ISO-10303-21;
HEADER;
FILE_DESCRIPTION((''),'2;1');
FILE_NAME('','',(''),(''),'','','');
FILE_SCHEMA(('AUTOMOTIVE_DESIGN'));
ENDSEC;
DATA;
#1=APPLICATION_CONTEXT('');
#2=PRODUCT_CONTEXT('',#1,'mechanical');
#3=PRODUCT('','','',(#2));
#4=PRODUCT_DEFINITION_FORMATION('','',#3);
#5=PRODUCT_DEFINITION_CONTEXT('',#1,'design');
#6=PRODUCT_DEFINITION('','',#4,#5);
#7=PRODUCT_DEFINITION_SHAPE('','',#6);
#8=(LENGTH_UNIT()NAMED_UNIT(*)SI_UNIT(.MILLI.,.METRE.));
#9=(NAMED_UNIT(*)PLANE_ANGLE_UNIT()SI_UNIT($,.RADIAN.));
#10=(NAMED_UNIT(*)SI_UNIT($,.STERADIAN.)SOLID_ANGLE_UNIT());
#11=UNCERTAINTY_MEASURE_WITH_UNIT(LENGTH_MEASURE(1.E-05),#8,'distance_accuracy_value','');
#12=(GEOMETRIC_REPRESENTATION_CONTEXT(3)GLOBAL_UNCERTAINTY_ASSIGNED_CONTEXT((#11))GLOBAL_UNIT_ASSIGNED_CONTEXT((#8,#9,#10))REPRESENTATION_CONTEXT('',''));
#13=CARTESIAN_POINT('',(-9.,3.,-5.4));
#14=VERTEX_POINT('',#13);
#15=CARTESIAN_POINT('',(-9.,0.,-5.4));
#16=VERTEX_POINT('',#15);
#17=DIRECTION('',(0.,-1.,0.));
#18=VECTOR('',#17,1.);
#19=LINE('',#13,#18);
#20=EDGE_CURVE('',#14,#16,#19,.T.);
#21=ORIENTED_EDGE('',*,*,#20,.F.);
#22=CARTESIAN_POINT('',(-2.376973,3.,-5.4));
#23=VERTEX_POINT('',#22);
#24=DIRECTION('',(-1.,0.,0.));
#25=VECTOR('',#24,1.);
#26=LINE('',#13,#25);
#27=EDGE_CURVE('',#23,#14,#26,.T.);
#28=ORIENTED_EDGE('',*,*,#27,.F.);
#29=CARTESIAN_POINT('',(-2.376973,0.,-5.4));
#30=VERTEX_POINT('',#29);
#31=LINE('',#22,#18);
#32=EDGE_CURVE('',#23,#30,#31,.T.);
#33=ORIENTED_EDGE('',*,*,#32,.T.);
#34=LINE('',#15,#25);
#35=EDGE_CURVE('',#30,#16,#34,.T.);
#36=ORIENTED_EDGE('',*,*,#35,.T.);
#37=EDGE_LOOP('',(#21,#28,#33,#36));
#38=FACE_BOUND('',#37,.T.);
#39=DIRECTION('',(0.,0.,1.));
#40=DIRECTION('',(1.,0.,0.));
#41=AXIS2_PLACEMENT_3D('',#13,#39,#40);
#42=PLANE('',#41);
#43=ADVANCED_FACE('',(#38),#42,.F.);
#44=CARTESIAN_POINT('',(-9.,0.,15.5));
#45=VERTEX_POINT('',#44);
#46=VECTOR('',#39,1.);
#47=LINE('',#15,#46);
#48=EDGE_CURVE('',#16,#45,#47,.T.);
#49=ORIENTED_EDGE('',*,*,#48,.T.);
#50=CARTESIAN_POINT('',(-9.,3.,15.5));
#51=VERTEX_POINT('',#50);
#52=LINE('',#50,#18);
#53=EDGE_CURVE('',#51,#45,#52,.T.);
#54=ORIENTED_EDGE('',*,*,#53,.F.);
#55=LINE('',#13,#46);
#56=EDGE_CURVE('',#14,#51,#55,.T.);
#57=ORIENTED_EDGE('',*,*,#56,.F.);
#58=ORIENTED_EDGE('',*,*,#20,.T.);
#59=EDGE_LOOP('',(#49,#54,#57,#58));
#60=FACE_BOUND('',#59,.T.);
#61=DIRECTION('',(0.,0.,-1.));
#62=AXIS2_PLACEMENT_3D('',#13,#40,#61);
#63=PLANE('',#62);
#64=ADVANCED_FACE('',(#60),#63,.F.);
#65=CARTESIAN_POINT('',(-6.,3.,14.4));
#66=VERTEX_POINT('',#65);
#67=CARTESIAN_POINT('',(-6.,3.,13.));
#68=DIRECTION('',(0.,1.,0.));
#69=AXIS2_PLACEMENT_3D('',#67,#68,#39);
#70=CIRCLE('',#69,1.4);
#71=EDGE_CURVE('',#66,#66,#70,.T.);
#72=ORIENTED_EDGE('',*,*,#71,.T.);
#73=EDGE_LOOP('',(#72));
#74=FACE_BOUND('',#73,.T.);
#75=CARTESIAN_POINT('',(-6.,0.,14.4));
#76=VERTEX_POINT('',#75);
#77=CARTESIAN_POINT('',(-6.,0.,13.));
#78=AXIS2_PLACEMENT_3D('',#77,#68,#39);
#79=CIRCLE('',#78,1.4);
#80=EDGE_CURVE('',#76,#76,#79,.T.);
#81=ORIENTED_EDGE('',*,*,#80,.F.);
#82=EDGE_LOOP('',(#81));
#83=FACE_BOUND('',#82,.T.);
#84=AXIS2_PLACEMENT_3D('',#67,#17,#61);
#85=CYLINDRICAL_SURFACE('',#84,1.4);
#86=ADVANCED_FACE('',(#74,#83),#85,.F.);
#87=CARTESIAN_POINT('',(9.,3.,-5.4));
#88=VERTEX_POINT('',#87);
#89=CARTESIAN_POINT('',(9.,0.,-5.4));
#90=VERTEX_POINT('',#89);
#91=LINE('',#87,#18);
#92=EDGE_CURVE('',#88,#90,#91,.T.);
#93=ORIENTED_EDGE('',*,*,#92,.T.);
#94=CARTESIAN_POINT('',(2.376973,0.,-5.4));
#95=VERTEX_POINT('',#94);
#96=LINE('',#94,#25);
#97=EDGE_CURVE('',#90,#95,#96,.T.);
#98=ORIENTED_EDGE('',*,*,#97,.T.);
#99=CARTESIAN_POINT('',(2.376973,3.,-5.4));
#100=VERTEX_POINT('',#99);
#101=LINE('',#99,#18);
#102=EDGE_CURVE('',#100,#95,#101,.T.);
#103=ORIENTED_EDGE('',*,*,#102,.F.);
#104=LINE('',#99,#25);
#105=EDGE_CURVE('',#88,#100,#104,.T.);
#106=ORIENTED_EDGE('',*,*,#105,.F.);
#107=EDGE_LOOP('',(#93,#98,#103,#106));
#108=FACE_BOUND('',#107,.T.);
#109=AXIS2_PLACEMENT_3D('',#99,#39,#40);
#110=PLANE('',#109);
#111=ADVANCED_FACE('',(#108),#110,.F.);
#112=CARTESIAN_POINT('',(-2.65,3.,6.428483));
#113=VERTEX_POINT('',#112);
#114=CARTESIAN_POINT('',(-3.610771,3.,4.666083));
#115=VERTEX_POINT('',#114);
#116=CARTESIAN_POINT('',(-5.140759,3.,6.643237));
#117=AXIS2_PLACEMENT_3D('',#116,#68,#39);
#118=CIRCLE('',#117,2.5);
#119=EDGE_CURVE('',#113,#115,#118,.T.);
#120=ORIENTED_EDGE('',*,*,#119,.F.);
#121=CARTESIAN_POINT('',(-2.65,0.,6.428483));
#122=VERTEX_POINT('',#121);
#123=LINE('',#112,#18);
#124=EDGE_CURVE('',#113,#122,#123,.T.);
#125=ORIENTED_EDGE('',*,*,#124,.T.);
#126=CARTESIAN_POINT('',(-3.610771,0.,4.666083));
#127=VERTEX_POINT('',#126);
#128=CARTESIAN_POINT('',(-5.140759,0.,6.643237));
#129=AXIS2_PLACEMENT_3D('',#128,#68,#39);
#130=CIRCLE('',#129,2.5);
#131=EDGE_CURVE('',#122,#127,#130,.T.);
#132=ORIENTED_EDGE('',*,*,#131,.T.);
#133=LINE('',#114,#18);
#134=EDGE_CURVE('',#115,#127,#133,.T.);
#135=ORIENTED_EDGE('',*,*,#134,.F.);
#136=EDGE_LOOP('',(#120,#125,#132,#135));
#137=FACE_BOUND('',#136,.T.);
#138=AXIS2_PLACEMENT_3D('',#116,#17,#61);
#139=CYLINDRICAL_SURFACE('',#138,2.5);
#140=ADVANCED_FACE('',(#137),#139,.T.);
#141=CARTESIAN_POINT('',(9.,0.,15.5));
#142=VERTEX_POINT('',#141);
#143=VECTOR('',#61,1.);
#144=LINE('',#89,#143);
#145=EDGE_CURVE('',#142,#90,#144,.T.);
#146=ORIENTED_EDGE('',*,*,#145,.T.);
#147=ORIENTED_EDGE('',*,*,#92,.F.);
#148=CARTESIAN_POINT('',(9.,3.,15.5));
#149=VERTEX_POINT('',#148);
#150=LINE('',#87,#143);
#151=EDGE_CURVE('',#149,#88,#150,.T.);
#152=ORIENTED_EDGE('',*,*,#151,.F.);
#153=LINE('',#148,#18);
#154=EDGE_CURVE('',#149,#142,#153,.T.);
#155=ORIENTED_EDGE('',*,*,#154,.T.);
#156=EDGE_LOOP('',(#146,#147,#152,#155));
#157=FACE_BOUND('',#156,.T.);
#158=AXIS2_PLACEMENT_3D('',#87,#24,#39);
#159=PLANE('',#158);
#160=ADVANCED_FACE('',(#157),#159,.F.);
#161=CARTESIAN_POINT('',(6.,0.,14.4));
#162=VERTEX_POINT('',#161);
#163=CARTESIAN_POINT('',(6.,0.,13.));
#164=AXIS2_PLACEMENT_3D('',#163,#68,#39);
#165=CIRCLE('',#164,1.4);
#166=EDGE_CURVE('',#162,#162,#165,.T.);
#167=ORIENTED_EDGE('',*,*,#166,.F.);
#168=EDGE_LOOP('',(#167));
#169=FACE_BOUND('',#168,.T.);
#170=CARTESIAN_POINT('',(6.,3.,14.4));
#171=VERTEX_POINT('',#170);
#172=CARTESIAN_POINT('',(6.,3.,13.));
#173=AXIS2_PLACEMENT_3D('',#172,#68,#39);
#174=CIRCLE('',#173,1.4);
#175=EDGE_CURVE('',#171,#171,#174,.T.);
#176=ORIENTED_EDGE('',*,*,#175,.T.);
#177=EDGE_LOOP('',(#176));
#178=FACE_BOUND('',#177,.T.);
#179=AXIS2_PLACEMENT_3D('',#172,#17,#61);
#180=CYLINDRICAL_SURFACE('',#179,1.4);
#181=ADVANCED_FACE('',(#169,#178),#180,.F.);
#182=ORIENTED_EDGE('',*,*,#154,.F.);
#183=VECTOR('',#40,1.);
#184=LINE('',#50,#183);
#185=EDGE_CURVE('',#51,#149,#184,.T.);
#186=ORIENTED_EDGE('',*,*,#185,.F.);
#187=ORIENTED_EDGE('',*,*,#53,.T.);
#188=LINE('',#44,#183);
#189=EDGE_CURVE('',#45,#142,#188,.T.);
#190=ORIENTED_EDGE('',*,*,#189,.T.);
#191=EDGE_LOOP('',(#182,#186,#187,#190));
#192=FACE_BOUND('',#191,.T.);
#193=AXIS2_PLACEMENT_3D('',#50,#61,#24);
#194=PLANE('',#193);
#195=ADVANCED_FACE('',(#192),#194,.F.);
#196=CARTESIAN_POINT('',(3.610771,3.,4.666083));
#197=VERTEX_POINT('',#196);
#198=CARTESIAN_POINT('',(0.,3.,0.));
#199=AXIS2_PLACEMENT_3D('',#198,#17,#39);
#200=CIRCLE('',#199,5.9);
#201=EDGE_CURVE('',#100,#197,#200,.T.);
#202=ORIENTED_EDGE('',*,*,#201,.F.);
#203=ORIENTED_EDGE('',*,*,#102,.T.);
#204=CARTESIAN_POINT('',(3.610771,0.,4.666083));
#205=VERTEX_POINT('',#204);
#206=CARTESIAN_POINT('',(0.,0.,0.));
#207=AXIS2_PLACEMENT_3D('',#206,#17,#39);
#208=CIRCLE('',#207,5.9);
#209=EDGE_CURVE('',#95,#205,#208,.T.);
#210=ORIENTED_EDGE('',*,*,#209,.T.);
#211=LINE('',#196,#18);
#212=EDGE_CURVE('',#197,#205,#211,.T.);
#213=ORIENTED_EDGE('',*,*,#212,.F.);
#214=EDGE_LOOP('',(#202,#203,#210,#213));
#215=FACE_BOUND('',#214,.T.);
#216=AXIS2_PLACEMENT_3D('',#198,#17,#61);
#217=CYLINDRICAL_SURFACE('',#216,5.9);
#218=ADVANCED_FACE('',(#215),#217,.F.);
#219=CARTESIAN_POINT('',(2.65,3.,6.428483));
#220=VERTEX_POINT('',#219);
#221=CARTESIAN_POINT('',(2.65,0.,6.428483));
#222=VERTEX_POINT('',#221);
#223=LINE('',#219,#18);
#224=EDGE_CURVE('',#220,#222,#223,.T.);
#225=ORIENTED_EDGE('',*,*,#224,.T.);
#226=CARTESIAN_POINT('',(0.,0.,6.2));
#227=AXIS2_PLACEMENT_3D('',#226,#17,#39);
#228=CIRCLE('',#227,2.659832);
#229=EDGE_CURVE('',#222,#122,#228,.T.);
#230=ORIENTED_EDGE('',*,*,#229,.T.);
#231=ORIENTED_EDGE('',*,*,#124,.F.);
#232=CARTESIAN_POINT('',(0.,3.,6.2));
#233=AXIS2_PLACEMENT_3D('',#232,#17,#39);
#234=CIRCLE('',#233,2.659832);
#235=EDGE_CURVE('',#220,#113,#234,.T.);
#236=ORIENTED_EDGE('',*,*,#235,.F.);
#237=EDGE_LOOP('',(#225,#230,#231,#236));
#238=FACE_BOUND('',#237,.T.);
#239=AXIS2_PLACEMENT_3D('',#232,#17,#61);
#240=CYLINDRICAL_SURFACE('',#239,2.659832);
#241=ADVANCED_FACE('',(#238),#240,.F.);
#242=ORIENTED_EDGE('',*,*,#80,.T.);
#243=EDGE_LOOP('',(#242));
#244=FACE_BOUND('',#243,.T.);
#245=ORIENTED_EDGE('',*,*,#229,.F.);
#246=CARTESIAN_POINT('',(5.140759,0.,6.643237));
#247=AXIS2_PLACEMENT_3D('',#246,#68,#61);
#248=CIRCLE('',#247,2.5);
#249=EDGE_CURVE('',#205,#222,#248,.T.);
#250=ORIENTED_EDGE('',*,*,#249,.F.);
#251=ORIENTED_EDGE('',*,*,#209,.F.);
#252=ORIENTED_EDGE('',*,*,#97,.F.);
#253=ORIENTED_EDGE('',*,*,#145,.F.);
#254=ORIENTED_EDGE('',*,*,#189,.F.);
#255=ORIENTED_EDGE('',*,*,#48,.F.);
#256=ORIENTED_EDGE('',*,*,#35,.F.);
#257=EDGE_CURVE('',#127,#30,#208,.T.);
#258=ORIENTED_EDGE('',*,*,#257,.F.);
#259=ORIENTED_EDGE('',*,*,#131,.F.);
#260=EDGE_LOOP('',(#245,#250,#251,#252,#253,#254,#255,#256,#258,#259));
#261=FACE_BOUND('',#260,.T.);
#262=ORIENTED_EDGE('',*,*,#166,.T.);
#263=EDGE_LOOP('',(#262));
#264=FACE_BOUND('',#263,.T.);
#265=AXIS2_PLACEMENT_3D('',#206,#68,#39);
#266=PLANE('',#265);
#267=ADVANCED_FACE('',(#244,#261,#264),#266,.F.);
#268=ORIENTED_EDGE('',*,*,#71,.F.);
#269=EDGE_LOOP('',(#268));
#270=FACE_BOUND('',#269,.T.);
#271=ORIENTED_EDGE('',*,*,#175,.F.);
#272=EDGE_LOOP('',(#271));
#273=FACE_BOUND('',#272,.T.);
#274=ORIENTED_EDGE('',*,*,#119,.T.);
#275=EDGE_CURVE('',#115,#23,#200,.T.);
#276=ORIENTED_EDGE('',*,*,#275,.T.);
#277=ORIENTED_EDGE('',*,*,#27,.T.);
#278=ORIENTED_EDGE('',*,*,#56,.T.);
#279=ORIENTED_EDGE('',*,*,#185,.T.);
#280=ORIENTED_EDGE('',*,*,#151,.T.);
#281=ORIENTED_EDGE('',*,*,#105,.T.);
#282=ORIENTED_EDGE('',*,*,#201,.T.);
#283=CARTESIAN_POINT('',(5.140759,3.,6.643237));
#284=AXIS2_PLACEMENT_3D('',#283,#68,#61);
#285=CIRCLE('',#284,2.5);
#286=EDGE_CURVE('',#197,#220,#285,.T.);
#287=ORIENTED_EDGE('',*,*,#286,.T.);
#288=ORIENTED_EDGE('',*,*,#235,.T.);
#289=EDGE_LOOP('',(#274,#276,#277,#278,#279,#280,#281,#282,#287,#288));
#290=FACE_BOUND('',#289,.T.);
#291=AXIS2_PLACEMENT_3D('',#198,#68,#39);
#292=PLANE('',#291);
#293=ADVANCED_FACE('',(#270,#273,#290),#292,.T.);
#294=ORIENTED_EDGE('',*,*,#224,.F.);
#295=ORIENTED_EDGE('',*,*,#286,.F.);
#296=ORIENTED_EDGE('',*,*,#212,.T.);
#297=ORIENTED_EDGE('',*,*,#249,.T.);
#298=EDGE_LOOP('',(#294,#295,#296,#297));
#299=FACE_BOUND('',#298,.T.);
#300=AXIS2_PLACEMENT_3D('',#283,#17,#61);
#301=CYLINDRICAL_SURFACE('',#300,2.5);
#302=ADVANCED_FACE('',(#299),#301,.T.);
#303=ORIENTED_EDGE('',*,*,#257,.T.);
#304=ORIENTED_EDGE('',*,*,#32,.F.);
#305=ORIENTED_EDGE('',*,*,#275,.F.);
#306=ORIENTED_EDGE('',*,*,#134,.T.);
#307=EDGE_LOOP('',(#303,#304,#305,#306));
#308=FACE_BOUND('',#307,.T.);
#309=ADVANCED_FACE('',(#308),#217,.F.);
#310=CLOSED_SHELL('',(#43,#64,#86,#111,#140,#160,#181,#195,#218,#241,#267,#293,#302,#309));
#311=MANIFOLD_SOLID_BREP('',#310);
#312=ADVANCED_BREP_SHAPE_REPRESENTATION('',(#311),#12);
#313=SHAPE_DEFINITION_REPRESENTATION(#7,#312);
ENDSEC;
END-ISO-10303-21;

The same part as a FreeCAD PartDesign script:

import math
import FreeCAD as App
import Part
import Sketcher

V = App.Vector
Q = App.Units.Quantity

doc = App.newDocument("Part")
body = doc.addObject("PartDesign::Body", "Body")

# Sketch on XZ plane
sketch1 = body.newObject("Sketcher::SketchObject", "Sketch")
sketch1.AttachmentSupport = (doc.getObject("XZ_Plane"), [""])
sketch1.MapMode = "FlatFace"
sketch1.addGeometry([
    Part.LineSegment(V(9, -5.4, 0), V(2.4, -5.4, 0)),  # 0
    Part.ArcOfCircle(Part.Circle(V(0, 0, 0), V(0, 0, 1), 5.9), math.radians(-66), math.radians(52)),  # 1
    Part.ArcOfCircle(Part.Circle(V(5.1, 6.6, 0), V(0, 0, 1), 2.5), math.radians(-175), math.radians(-128)),  # 2
    Part.ArcOfCircle(Part.Circle(V(0, 6.2, 0), V(0, 0, 1), 2.7), math.radians(5), math.radians(175)),  # 3
    Part.ArcOfCircle(Part.Circle(V(-5.1, 6.6, 0), V(0, 0, 1), 2.5), math.radians(-52), math.radians(-5)),  # 4
    Part.ArcOfCircle(Part.Circle(V(0, 0, 0), V(0, 0, 1), 5.9), math.radians(128), math.radians(246)),  # 5
    Part.LineSegment(V(-2.4, -5.4, 0), V(-9, -5.4, 0)),  # 6
    Part.LineSegment(V(-9, -5.4, 0), V(-9, 15.5, 0)),  # 7
    Part.LineSegment(V(-9, 15.5, 0), V(9, 15.5, 0)),  # 8
    Part.LineSegment(V(9, 15.5, 0), V(9, -5.4, 0)),  # 9
    Part.Circle(V(6, 13, 0), V(0, 0, 1), 1.4),  # 10
    Part.Circle(V(-6, 13, 0), V(0, 0, 1), 1.4),  # 11
], False)
sketch1.addConstraint([
    Sketcher.Constraint("Coincident", 0, 2, 1, 1),
    Sketcher.Constraint("Tangent", 1, 2, 2, 2),
    Sketcher.Constraint("Tangent", 2, 1, 3, 1),
    Sketcher.Constraint("Tangent", 3, 2, 4, 2),
    Sketcher.Constraint("Tangent", 4, 1, 5, 1),
    Sketcher.Constraint("Coincident", 5, 2, 6, 1),
    Sketcher.Constraint("Coincident", 6, 2, 7, 1),
    Sketcher.Constraint("Coincident", 7, 2, 8, 1),
    Sketcher.Constraint("Coincident", 8, 2, 9, 1),
    Sketcher.Constraint("Coincident", 9, 2, 0, 1),
    Sketcher.Constraint("Horizontal", 0),
    Sketcher.Constraint("Horizontal", 6),
    Sketcher.Constraint("Vertical", 7),
    Sketcher.Constraint("Horizontal", 8),
    Sketcher.Constraint("Vertical", 9),
    Sketcher.Constraint("Coincident", 1, 3, -1, 1),
    Sketcher.Constraint("Coincident", 5, 3, -1, 1),
    Sketcher.Constraint("Equal", 2, 4),
    Sketcher.Constraint("Equal", 1, 5),
    Sketcher.Constraint("Equal", 10, 11),
    Sketcher.Constraint("Symmetric", 10, 3, 11, 3, -2),
    Sketcher.Constraint("Symmetric", 6, 2, 9, 2, -2),
    Sketcher.Constraint("PointOnObject", 3, 3, -2),
    Sketcher.Constraint("Diameter", 10, Q("2.8 mm")),
    Sketcher.Constraint("Radius", 1, Q("5.9 mm")),
    Sketcher.Constraint("Radius", 2, Q("2.5 mm")),
    Sketcher.Constraint("DistanceX", 8, 1, 8, 2, Q("18 mm")),
    Sketcher.Constraint("DistanceY", 7, 1, 7, 2, Q("20.9 mm")),
    Sketcher.Constraint("DistanceX", -1, 1, 10, 3, Q("6 mm")),
    Sketcher.Constraint("DistanceY", -1, 1, 10, 3, Q("13 mm")),
    Sketcher.Constraint("DistanceY", -1, 1, 3, 3, Q("6.2 mm")),
    Sketcher.Constraint("DistanceY", 0, 2, -1, 1, Q("5.4 mm")),
    Sketcher.Constraint("DistanceX", 3, 2, 2, 1, Q("5.3 mm")),
])
pad1 = body.newObject("PartDesign::Pad", "Pad")
pad1.Profile = sketch1
pad1.Length = 3
pad1.Reversed = True

doc.recompute()
